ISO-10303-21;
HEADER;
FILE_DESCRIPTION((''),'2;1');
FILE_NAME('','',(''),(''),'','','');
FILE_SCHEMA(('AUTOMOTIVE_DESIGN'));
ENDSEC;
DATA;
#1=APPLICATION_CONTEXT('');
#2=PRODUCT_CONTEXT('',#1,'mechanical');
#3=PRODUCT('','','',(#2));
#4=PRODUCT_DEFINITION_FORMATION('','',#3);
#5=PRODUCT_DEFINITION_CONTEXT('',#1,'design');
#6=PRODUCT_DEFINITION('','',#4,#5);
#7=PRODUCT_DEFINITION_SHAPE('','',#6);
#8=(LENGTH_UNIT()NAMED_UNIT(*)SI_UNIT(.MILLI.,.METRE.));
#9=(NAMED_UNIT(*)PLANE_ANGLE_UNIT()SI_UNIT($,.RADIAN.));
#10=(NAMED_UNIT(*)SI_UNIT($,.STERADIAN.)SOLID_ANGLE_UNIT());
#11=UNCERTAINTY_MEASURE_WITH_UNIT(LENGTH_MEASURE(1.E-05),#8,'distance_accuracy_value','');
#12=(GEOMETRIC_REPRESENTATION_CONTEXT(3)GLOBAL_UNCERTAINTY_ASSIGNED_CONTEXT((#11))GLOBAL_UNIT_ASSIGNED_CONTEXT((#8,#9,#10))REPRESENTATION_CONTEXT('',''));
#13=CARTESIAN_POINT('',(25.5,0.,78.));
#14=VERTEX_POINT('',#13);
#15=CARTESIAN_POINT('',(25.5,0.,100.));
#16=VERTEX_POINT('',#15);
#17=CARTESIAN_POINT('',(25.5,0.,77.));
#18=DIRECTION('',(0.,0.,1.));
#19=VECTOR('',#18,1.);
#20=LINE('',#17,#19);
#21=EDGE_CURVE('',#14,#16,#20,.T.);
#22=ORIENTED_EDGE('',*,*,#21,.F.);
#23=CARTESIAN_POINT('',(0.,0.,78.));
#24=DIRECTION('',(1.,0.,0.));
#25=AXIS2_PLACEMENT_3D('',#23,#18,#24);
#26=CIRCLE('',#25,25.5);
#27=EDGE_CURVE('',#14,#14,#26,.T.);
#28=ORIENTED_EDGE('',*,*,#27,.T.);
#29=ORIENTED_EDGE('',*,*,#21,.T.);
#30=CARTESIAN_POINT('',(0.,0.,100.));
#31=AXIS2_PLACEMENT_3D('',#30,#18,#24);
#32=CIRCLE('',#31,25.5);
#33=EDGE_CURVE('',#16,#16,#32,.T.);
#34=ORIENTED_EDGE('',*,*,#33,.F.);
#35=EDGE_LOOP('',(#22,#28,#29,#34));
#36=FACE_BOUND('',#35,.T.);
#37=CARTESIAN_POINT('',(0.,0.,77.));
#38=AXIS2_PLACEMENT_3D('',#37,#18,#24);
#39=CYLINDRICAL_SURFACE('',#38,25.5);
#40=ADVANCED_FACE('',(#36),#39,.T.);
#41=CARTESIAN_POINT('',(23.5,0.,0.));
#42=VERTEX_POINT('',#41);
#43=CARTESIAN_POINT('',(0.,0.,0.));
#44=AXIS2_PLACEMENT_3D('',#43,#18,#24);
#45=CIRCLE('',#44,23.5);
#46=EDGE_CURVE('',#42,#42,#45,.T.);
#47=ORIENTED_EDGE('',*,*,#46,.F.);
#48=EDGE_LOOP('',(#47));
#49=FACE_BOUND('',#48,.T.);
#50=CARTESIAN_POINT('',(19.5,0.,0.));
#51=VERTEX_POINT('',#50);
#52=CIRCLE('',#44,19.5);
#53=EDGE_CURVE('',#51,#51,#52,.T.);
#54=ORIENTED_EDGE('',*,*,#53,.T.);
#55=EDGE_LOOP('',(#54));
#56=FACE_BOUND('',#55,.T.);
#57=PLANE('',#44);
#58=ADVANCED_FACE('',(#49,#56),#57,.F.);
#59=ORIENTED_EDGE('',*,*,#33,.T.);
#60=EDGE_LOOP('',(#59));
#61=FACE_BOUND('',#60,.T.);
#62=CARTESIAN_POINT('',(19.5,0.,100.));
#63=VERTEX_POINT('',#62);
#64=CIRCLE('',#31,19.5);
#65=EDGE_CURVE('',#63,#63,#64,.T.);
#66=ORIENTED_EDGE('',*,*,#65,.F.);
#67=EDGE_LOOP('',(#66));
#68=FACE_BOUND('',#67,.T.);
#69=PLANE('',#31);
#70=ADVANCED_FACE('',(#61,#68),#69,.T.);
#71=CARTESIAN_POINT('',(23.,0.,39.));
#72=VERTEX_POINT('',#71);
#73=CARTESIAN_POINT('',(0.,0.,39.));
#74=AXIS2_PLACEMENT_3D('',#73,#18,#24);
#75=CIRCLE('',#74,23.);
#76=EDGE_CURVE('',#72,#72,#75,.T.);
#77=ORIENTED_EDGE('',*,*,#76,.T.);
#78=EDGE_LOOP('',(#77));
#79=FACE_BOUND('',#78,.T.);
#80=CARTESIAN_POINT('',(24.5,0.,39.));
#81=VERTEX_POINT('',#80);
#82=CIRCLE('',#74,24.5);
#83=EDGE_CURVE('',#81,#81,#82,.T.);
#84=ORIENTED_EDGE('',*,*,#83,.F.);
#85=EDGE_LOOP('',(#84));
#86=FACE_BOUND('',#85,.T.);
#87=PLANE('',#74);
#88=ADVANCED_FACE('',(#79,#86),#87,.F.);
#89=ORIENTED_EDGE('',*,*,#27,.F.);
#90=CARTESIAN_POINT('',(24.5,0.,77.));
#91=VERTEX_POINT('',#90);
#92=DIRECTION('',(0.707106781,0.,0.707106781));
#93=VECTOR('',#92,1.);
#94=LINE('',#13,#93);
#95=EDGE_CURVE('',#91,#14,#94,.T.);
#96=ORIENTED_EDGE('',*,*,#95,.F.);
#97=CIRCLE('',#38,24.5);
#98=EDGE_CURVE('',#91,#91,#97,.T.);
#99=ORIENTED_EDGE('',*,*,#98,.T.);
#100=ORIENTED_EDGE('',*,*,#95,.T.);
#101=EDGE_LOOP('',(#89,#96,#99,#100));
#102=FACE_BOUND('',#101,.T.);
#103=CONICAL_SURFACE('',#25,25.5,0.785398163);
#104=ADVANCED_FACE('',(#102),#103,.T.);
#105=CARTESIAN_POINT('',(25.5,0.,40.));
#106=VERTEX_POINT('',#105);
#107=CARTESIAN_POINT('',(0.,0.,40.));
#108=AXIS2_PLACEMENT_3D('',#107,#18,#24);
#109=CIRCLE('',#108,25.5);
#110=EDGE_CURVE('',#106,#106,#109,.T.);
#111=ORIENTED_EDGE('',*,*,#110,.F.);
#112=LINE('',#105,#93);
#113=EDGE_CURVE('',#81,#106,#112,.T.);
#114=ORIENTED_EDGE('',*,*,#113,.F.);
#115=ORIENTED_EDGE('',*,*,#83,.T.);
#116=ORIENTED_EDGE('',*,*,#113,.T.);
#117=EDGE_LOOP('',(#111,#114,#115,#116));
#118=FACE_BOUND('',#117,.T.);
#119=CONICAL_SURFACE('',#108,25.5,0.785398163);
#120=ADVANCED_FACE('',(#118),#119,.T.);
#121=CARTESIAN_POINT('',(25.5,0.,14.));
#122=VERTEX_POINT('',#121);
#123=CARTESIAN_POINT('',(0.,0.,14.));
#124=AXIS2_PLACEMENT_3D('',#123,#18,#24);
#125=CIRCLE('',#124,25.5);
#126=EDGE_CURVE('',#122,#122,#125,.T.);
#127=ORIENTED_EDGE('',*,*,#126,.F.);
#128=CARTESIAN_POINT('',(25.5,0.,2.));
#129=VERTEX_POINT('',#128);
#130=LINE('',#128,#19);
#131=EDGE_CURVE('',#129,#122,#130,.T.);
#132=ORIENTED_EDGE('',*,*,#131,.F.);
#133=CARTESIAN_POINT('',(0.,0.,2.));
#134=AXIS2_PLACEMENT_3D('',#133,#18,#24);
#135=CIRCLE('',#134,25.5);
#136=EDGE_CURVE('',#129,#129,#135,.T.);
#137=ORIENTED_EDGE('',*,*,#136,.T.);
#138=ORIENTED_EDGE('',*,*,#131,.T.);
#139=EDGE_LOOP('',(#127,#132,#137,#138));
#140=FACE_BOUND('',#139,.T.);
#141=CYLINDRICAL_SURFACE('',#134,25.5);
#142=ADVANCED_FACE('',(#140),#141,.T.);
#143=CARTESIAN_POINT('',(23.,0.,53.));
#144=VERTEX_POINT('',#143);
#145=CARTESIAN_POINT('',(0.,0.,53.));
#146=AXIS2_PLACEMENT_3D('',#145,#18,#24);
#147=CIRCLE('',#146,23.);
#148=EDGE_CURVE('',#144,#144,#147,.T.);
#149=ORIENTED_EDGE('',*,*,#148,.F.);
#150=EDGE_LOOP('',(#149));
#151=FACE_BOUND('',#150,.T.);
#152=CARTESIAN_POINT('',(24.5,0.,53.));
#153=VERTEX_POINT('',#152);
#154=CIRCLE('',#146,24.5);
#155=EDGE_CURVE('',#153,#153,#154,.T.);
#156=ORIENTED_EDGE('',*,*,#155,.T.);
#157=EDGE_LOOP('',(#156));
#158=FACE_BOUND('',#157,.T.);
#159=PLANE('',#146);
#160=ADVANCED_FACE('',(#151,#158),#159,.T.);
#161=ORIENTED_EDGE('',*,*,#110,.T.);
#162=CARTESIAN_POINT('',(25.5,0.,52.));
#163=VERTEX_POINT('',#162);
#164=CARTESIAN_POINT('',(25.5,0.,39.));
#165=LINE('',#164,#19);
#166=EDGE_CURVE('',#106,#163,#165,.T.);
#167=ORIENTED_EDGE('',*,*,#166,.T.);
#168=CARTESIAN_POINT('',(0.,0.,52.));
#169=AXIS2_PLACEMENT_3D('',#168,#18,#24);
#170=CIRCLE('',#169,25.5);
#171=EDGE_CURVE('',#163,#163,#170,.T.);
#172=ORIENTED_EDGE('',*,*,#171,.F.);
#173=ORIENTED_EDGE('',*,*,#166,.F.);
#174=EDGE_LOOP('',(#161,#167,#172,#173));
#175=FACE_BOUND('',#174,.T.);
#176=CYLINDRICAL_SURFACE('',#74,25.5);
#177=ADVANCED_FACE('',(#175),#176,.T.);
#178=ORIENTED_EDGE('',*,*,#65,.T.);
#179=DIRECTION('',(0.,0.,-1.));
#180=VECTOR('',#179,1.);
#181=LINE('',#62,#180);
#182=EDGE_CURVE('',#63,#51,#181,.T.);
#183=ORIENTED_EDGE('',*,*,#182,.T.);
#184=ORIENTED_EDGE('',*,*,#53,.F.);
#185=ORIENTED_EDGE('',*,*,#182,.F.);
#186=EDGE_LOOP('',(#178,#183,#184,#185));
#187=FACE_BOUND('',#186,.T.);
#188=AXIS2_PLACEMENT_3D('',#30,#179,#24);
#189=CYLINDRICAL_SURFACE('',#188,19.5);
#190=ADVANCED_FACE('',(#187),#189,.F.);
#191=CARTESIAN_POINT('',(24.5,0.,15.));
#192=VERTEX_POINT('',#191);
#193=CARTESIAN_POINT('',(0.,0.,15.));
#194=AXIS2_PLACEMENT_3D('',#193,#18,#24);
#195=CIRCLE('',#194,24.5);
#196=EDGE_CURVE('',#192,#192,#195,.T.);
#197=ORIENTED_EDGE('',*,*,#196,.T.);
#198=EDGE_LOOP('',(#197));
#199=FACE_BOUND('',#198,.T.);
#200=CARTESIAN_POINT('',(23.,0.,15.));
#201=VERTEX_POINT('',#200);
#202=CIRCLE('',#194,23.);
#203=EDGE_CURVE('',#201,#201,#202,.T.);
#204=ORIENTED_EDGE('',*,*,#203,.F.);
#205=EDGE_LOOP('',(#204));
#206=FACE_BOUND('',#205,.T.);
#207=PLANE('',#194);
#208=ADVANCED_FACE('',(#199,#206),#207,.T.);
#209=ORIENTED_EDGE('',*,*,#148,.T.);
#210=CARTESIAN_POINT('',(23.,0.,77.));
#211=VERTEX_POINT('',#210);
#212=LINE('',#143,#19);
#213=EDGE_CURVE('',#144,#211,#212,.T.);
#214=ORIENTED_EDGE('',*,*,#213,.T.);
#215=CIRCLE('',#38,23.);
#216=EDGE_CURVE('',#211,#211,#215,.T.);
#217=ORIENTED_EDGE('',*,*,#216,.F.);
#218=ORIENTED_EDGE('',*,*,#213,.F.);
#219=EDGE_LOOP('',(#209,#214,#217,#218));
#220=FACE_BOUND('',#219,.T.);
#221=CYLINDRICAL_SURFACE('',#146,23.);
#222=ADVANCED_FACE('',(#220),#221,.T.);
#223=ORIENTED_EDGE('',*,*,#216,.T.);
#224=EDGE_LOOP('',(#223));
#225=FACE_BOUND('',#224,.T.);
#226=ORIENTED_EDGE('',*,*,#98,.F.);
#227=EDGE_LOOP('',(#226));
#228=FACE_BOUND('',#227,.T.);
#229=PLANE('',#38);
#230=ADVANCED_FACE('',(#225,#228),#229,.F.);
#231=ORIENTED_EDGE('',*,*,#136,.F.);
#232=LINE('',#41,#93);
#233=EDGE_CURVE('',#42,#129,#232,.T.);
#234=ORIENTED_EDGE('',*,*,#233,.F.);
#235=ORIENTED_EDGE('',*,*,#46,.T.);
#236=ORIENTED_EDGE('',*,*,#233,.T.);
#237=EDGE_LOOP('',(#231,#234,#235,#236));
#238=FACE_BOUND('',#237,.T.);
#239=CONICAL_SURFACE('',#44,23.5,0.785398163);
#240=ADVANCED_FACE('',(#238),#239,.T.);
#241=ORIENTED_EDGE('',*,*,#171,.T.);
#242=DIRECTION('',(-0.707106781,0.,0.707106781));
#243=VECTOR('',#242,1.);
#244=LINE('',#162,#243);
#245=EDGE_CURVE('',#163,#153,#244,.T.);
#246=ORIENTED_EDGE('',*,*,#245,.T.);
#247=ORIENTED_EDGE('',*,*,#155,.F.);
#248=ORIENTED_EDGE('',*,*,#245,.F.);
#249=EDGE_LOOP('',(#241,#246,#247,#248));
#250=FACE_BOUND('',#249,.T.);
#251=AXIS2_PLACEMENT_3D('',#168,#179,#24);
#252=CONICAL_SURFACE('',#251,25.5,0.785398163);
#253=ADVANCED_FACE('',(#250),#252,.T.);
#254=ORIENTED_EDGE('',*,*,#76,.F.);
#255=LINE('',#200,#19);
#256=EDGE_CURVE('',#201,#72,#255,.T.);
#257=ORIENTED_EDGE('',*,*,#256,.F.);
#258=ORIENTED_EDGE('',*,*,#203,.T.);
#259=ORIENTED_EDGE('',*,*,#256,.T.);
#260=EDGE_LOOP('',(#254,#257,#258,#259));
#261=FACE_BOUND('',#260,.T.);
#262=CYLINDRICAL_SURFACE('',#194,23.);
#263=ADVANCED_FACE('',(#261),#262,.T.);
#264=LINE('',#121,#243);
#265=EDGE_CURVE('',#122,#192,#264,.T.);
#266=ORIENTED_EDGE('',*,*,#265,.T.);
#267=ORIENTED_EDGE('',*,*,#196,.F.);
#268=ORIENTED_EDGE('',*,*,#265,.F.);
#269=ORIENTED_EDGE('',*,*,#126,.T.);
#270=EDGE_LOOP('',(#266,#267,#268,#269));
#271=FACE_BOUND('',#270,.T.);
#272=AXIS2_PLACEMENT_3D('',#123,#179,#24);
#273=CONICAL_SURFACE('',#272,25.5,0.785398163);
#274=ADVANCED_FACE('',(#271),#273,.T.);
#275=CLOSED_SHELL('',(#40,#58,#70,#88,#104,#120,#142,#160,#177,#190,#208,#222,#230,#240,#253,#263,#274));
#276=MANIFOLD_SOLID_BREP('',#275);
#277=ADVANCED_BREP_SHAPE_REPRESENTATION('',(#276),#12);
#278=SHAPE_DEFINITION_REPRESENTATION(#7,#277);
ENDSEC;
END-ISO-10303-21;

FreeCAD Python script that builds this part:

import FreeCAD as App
import Part
import Sketcher
from FreeCAD import Vector
Q = App.Units.Quantity


def edges_at(feature, points):
    """Names of the edges that pass closest to the given points."""
    edges = feature.Shape.Edges
    near = lambda p: min(range(len(edges)), key=lambda i: edges[i].distToShape(Part.Vertex(*p))[0])
    return sorted({f"Edge{near(p) + 1}" for p in points})


def add_polygon(sketch, points):
    """Adds a closed chain of lines whose ends are joined by coincident constraints."""
    first, n = sketch.GeometryCount, len(points)
    for a, b in zip(points, points[1:] + points[:1]):
        sketch.addGeometry(Part.LineSegment(App.Vector(*a, 0), App.Vector(*b, 0)), False)
    for i in range(n):
        sketch.addConstraint(Sketcher.Constraint("Coincident", first + i, 2, first + (i + 1) % n, 1))

doc = App.newDocument("Part")
params = doc.addObject("Spreadsheet::Sheet", "Params")
for row, (alias, value) in enumerate([
    ("sketch1_width", "4 mm"),
    ("sketch1_width2", "6 mm"),
    ("sketch1_height", "100 mm"),
    ("sketch1_height2", "13 mm"),
    ("sketch1_height3", "24 mm"),
    ("revolution_angle", "360 deg"),
    ("chamfer_size", "1 mm"),
], start=1):
    params.set(f"A{row}", alias)
    params.set(f"B{row}", "=" + value)
    params.setAlias(f"B{row}", alias)

body = doc.addObject("PartDesign::Body", "Body")

sketch1 = body.newObject("Sketcher::SketchObject", "Sketch")
sketch1.AttachmentSupport = (doc.getObject("XZ_Plane"), [""])
sketch1.MapMode = "FlatFace"
add_polygon(sketch1, [(19.5, 100), (19.5, 0), (23.5, 0), (25.5, 2), (25.5, 15), (23, 15), (23, 39), (25.5, 39), (25.5, 53), (23, 53), (23, 77), (25.5, 77), (25.5, 100)])
sketch1.addConstraint(Sketcher.Constraint("Vertical", 0))
sketch1.addConstraint(Sketcher.Constraint("Horizontal", 1))
sketch1.addConstraint(Sketcher.Constraint("Vertical", 3))
sketch1.addConstraint(Sketcher.Constraint("Horizontal", 4))
sketch1.addConstraint(Sketcher.Constraint("Vertical", 5))
sketch1.addConstraint(Sketcher.Constraint("Horizontal", 6))
sketch1.addConstraint(Sketcher.Constraint("Vertical", 7))
sketch1.addConstraint(Sketcher.Constraint("Horizontal", 8))
sketch1.addConstraint(Sketcher.Constraint("Vertical", 9))
sketch1.addConstraint(Sketcher.Constraint("Horizontal", 10))
sketch1.addConstraint(Sketcher.Constraint("Vertical", 11))
sketch1.addConstraint(Sketcher.Constraint("Horizontal", 12))
sketch1.addConstraint(Sketcher.Constraint("PointOnObject", 0, 2, -1))
sketch1.addConstraint(Sketcher.Constraint("Vertical", 3, 2, 6, 2))
sketch1.addConstraint(Sketcher.Constraint("Vertical", 5, 2, 8, 2))
sketch1.addConstraint(Sketcher.Constraint("Vertical", 7, 2, 10, 2))
sketch1.addConstraint(Sketcher.Constraint("Equal", 5, 9))
sketch1.addConstraint(Sketcher.Constraint("DistanceX", 1, 1, 1, 2, Q("4 mm")))
sketch1.addConstraint(Sketcher.Constraint("DistanceX", 12, 2, 12, 1, Q("6 mm")))
sketch1.addConstraint(Sketcher.Constraint("DistanceY", 0, 2, 0, 1, Q("100 mm")))
sketch1.addConstraint(Sketcher.Constraint("DistanceY", 3, 1, 3, 2, Q("13 mm")))
sketch1.addConstraint(Sketcher.Constraint("DistanceY", 5, 1, 5, 2, Q("24 mm")))
sketch1.addConstraint(Sketcher.Constraint("DistanceY", 7, 1, 7, 2, Q("14 mm")))
sketch1.addConstraint(Sketcher.Constraint("DistanceY", 11, 1, 11, 2, Q("23 mm")))
sketch1.addConstraint(Sketcher.Constraint("DistanceX", 4, 2, 4, 1, Q("2.5 mm")))
sketch1.addConstraint(Sketcher.Constraint("DistanceX", -1, 1, 4, 2, Q("23 mm")))
sketch1.setExpression("Constraints[30]", "Params.sketch1_width")
sketch1.setExpression("Constraints[31]", "Params.sketch1_width2")
sketch1.setExpression("Constraints[32]", "Params.sketch1_height")
sketch1.setExpression("Constraints[33]", "Params.sketch1_height2")
sketch1.setExpression("Constraints[34]", "Params.sketch1_height3")
revolution = body.newObject("PartDesign::Revolution", "Revolution")
revolution.Profile = sketch1
revolution.ReferenceAxis = (sketch1, ["V_Axis"])
revolution.setExpression("Angle", "Params.revolution_angle")
doc.recompute()

chamfer = body.newObject("PartDesign::Chamfer", "Chamfer")
chamfer.Base = (revolution, edges_at(revolution, [
    (-25.5, 0, 77),
    (-25.5, 0, 53),
    (-25.5, 0, 39),
    (-25.5, 0, 15),
]))
chamfer.setExpression("Size", "Params.chamfer_size")

doc.recompute()
